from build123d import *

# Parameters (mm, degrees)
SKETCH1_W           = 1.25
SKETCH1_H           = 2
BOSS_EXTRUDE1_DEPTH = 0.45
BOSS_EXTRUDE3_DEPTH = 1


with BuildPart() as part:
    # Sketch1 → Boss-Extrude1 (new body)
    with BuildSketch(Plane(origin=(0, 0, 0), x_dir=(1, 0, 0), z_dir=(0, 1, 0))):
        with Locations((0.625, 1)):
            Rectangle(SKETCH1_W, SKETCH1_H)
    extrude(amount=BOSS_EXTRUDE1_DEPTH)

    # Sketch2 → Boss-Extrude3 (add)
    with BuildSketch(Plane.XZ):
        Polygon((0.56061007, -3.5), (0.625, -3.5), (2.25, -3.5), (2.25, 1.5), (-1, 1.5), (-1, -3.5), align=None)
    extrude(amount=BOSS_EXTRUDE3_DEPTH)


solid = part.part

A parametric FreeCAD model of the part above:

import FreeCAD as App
import Part
import Sketcher

doc = App.newDocument("Part")
body = doc.addObject("PartDesign::Body", "Body")

sketch1 = body.newObject("Sketcher::SketchObject", "Sketch")
sketch1.AttachmentSupport = (doc.getObject("XZ_Plane"), [""])
sketch1.MapMode = "FlatFace"
sketch1.addGeometry(Part.LineSegment(App.Vector(0, -2, 0), App.Vector(0, 0, 0)), False)
sketch1.addGeometry(Part.LineSegment(App.Vector(0, 0, 0), App.Vector(1.2, 0, 0)), False)
sketch1.addGeometry(Part.LineSegment(App.Vector(1.2, 0, 0), App.Vector(1.2, -2, 0)), False)
sketch1.addGeometry(Part.LineSegment(App.Vector(1.2, -2, 0), App.Vector(0, -2, 0)), False)
sketch1.addConstraint(Sketcher.Constraint("Coincident", 0, 2, 1, 1))
sketch1.addConstraint(Sketcher.Constraint("Coincident", 1, 2, 2, 1))
sketch1.addConstraint(Sketcher.Constraint("Coincident", 2, 2, 3, 1))
sketch1.addConstraint(Sketcher.Constraint("Coincident", 3, 2, 0, 1))
sketch1.addConstraint(Sketcher.Constraint("Vertical", 0))
sketch1.addConstraint(Sketcher.Constraint("Horizontal", 1))
sketch1.addConstraint(Sketcher.Constraint("Vertical", 2))
sketch1.addConstraint(Sketcher.Constraint("Horizontal", 3))
sketch1.addConstraint(Sketcher.Constraint("Coincident", 0, 2, -1, 1))
sketch1.addConstraint(Sketcher.Constraint("DistanceY", 0, 1, 0, 2, 2.0))
sketch1.addConstraint(Sketcher.Constraint("DistanceX", 1, 1, 1, 2, 1.25))
pad1 = body.newObject("PartDesign::Pad", "Pad")
pad1.Profile = sketch1
pad1.Length = 0.45
pad1.Reversed = True

sketch2 = body.newObject("Sketcher::SketchObject", "Sketch001")
sketch2.AttachmentSupport = (doc.getObject("XZ_Plane"), [""])
sketch2.MapMode = "FlatFace"
sketch2.addGeometry(Part.LineSegment(App.Vector(2.2, -3.5, 0), App.Vector(2.2, 1.5, 0)), False)
sketch2.addGeometry(Part.LineSegment(App.Vector(2.2, 1.5, 0), App.Vector(-1, 1.5, 0)), False)
sketch2.addGeometry(Part.LineSegment(App.Vector(-1, 1.5, 0), App.Vector(-1, -3.5, 0)), False)
sketch2.addGeometry(Part.LineSegment(App.Vector(-1, -3.5, 0), App.Vector(2.2, -3.5, 0)), False)
sketch2.addConstraint(Sketcher.Constraint("Coincident", 0, 2, 1, 1))
sketch2.addConstraint(Sketcher.Constraint("Coincident", 1, 2, 2, 1))
sketch2.addConstraint(Sketcher.Constraint("Coincident", 2, 2, 3, 1))
sketch2.addConstraint(Sketcher.Constraint("Coincident", 3, 2, 0, 1))
sketch2.addConstraint(Sketcher.Constraint("Vertical", 0))
sketch2.addConstraint(Sketcher.Constraint("Horizontal", 1))
sketch2.addConstraint(Sketcher.Constraint("Vertical", 2))
sketch2.addConstraint(Sketcher.Constraint("Horizontal", 3))
sketch2.addConstraint(Sketcher.Constraint("DistanceY", 0, 1, 0, 2, 5.0))
sketch2.addConstraint(Sketcher.Constraint("DistanceX", 1, 2, -1, 1, 1.0))
sketch2.addConstraint(Sketcher.Constraint("DistanceX", 1, 2, 1, 1, 3.25))
sketch2.addConstraint(Sketcher.Constraint("DistanceY", -1, 1, 0, 2, 1.5))
pad2 = body.newObject("PartDesign::Pad", "Pad001")
pad2.Profile = sketch2
pad2.Length = 1

doc.recompute()
